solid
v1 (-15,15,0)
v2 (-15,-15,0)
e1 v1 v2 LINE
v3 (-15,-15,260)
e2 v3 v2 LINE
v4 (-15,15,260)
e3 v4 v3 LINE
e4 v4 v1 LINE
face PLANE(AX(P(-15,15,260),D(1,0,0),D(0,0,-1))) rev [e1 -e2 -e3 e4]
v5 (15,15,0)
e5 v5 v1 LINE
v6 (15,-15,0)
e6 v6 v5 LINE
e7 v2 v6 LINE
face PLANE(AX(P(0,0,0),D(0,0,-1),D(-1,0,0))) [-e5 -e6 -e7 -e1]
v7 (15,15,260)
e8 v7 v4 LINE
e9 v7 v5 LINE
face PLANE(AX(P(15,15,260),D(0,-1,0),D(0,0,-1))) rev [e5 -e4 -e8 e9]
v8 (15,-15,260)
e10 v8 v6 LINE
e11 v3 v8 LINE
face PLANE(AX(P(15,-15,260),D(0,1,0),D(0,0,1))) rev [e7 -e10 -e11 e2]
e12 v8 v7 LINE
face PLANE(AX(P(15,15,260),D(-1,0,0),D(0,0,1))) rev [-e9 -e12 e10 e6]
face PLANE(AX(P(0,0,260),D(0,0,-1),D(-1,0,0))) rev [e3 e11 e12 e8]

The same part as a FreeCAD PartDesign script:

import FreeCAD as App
import Part
import Sketcher
Q = App.Units.Quantity


def add_polygon(sketch, points):
    """Adds a closed chain of lines whose ends are joined by coincident constraints."""
    first, n = sketch.GeometryCount, len(points)
    for a, b in zip(points, points[1:] + points[:1]):
        sketch.addGeometry(Part.LineSegment(App.Vector(*a, 0), App.Vector(*b, 0)), False)
    for i in range(n):
        sketch.addConstraint(Sketcher.Constraint("Coincident", first + i, 2, first + (i + 1) % n, 1))

doc = App.newDocument("Part")
body = doc.addObject("PartDesign::Body", "Body")

# Sketch on XY plane
sketch1 = body.newObject("Sketcher::SketchObject", "Sketch")
sketch1.AttachmentSupport = (doc.getObject("XY_Plane"), [""])
sketch1.MapMode = "FlatFace"
add_polygon(sketch1, [(-15, 15), (-15, -15), (15, -15), (15, 15)])  # lines 0-3
sketch1.addConstraint(Sketcher.Constraint("Vertical", 0))
sketch1.addConstraint(Sketcher.Constraint("Horizontal", 1))
sketch1.addConstraint(Sketcher.Constraint("Vertical", 2))
sketch1.addConstraint(Sketcher.Constraint("Horizontal", 3))
sketch1.addConstraint(Sketcher.Constraint("Symmetric", 0, 2, 2, 2, -1, 1))
sketch1.addConstraint(Sketcher.Constraint("Equal", 3, 0))
sketch1.addConstraint(Sketcher.Constraint("DistanceX", 1, 1, 1, 2, Q("30 mm")))
pad1 = body.newObject("PartDesign::Pad", "Pad")
pad1.Profile = sketch1
pad1.Length = 260

doc.recompute()
